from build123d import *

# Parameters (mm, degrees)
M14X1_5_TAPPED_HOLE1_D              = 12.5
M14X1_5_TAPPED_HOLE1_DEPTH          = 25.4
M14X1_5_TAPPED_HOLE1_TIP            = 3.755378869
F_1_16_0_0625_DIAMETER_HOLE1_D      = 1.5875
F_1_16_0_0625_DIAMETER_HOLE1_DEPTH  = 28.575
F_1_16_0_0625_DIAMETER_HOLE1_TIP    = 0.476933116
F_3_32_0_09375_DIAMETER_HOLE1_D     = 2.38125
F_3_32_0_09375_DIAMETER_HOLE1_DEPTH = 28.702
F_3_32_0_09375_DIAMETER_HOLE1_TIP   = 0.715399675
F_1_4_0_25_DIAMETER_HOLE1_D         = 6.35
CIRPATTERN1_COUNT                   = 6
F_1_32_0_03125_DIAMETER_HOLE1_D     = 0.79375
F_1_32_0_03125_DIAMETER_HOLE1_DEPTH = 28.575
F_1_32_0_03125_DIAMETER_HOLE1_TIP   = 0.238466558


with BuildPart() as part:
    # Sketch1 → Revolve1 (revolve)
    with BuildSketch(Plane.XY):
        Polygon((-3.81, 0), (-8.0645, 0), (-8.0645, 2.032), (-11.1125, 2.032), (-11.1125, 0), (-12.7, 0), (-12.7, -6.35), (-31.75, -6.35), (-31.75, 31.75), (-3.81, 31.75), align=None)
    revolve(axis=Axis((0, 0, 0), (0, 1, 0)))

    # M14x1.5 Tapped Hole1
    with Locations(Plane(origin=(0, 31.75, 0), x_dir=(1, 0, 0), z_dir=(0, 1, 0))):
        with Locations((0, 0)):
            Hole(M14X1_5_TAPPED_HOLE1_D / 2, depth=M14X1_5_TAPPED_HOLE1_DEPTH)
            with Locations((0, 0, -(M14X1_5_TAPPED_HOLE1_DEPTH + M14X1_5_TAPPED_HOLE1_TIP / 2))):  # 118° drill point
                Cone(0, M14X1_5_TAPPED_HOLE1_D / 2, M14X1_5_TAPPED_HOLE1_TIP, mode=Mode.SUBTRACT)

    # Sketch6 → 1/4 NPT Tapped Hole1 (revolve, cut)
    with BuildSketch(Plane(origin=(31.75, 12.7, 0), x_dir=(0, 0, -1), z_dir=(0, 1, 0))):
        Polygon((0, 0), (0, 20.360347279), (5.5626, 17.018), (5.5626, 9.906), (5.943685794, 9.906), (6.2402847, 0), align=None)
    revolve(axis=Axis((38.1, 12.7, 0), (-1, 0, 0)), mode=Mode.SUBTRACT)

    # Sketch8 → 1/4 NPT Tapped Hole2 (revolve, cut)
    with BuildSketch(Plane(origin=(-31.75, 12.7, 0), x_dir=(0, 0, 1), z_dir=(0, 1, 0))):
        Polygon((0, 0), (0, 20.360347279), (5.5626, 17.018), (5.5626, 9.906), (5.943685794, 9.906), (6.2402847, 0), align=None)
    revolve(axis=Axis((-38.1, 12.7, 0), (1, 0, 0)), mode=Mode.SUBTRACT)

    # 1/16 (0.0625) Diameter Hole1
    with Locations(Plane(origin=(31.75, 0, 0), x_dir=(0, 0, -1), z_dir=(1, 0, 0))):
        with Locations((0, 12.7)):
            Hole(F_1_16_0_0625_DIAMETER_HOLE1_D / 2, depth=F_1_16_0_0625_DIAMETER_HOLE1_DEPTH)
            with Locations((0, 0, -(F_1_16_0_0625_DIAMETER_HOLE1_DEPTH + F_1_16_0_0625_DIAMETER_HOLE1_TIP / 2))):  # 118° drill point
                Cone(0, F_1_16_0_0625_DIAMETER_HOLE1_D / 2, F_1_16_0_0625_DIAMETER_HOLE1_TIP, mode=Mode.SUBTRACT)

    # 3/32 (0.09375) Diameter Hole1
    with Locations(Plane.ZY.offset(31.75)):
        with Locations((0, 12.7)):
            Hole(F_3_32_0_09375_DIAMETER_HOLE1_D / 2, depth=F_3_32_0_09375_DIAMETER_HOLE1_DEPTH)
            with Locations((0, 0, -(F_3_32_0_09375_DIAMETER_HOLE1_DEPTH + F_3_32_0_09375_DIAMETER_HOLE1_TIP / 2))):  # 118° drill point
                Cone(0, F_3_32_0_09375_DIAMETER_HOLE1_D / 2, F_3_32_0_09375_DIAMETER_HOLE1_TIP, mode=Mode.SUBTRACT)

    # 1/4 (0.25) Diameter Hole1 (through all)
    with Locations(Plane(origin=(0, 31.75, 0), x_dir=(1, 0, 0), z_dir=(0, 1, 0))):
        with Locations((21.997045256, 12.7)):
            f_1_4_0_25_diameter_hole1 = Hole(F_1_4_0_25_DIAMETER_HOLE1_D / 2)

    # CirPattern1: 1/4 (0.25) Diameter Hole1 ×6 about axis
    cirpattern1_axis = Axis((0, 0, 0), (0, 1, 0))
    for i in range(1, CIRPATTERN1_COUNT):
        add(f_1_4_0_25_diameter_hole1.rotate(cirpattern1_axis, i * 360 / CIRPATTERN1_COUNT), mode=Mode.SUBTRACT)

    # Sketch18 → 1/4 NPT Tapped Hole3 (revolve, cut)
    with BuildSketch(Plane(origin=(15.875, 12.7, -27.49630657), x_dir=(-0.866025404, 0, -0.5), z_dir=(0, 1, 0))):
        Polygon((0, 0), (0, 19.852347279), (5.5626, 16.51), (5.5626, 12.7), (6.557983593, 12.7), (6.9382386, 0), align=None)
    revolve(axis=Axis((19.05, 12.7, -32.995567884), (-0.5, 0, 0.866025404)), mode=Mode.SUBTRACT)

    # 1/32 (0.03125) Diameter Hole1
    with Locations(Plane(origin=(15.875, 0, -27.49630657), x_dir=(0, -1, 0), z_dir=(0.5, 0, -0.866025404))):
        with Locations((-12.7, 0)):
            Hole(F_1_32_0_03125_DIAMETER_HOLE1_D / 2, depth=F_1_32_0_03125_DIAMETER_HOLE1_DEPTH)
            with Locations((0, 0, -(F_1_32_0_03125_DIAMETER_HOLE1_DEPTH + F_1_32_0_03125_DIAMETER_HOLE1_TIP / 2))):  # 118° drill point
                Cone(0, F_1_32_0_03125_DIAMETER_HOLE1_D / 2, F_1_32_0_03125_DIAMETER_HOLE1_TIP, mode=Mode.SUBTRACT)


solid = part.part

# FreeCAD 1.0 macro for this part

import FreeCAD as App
import Part
import Sketcher
from FreeCAD import Vector
Q = App.Units.Quantity

doc = App.newDocument("Part")
body = doc.addObject("PartDesign::Body", "Body")

sketch1 = doc.addObject("Sketcher::SketchObject", "Sketch")
body.addObject(sketch1)
sketch1.AttachmentSupport = (doc.XY_Plane, [""])
sketch1.MapMode = "FlatFace"
sketch1.addGeometry(Part.LineSegment(Vector(-8.1, 0, 0), Vector(-3.8, 0, 0)), False)
sketch1.addGeometry(Part.LineSegment(Vector(-3.8, 0, 0), Vector(-3.8, 31.8, 0)), False)
sketch1.addGeometry(Part.LineSegment(Vector(-3.8, 31.8, 0), Vector(-31.8, 31.8, 0)), False)
sketch1.addGeometry(Part.LineSegment(Vector(-31.8, 31.8, 0), Vector(-31.8, -6.3, 0)), False)
sketch1.addGeometry(Part.LineSegment(Vector(-31.8, -6.3, 0), Vector(-12.7, -6.3, 0)), False)
sketch1.addGeometry(Part.LineSegment(Vector(-12.7, -6.3, 0), Vector(-12.7, 0, 0)), False)
sketch1.addGeometry(Part.LineSegment(Vector(-12.7, 0, 0), Vector(-11.1, 0, 0)), False)
sketch1.addGeometry(Part.LineSegment(Vector(-11.1, 0, 0), Vector(-11.1, 2, 0)), False)
sketch1.addGeometry(Part.LineSegment(Vector(-11.1, 2, 0), Vector(-8.1, 2, 0)), False)
sketch1.addGeometry(Part.LineSegment(Vector(-8.1, 2, 0), Vector(-8.1, 0, 0)), False)
sketch1.addConstraint(Sketcher.Constraint("Coincident", 0, 2, 1, 1))
sketch1.addConstraint(Sketcher.Constraint("Coincident", 1, 2, 2, 1))
sketch1.addConstraint(Sketcher.Constraint("Coincident", 2, 2, 3, 1))
sketch1.addConstraint(Sketcher.Constraint("Coincident", 3, 2, 4, 1))
sketch1.addConstraint(Sketcher.Constraint("Coincident", 4, 2, 5, 1))
sketch1.addConstraint(Sketcher.Constraint("Coincident", 5, 2, 6, 1))
sketch1.addConstraint(Sketcher.Constraint("Coincident", 6, 2, 7, 1))
sketch1.addConstraint(Sketcher.Constraint("Coincident", 7, 2, 8, 1))
sketch1.addConstraint(Sketcher.Constraint("Coincident", 8, 2, 9, 1))
sketch1.addConstraint(Sketcher.Constraint("Coincident", 9, 2, 0, 1))
sketch1.addConstraint(Sketcher.Constraint("Horizontal", 0))
sketch1.addConstraint(Sketcher.Constraint("Vertical", 1))
sketch1.addConstraint(Sketcher.Constraint("Horizontal", 2))
sketch1.addConstraint(Sketcher.Constraint("Vertical", 3))
sketch1.addConstraint(Sketcher.Constraint("Horizontal", 4))
sketch1.addConstraint(Sketcher.Constraint("Vertical", 5))
sketch1.addConstraint(Sketcher.Constraint("Horizontal", 6))
sketch1.addConstraint(Sketcher.Constraint("Vertical", 7))
sketch1.addConstraint(Sketcher.Constraint("Horizontal", 8))
sketch1.addConstraint(Sketcher.Constraint("Vertical", 9))
sketch1.addConstraint(Sketcher.Constraint("PointOnObject", 0, 2, -1))
sketch1.addConstraint(Sketcher.Constraint("PointOnObject", 5, 2, -1))
sketch1.addConstraint(Sketcher.Constraint("DistanceX", 2, 2, 2, 1, Q("1.1 in")))
sketch1.addConstraint(Sketcher.Constraint("DistanceY", 3, 2, 3, 1, Q("1.5 in")))
sketch1.addConstraint(Sketcher.Constraint("DistanceX", 4, 1, 4, 2, Q("0.75 in")))
sketch1.addConstraint(Sketcher.Constraint("DistanceX", 8, 1, 8, 2, Q("0.12 in")))
sketch1.addConstraint(Sketcher.Constraint("DistanceY", 1, 1, 1, 2, Q("1.25 in")))
sketch1.addConstraint(Sketcher.Constraint("DistanceY", 7, 1, 7, 2, Q("0.08 in")))
sketch1.addConstraint(Sketcher.Constraint("DistanceX", 4, 2, -1, 1, Q("0.5 in")))
sketch1.addConstraint(Sketcher.Constraint("DistanceX", 6, 1, 6, 2, Q("0.0625 in")))
revolution = doc.addObject("PartDesign::Revolution", "Revolution")
body.addObject(revolution)
revolution.Profile = sketch1
revolution.ReferenceAxis = (sketch1, ["V_Axis"])
revolution.Angle = 360

sketch2 = doc.addObject("Sketcher::SketchObject", "Sketch001")
body.addObject(sketch2)
sketch2.AttachmentSupport = (doc.XZ_Plane, [""])
sketch2.MapMode = "FlatFace"
sketch2.AttachmentOffset = App.Placement(Vector(0, 0, -1.25 * 25.4), App.Rotation())
sketch2.addGeometry(Part.Circle(Vector(0, 0, 0), Vector(0, 0, 1), 6), False)
sketch2.addConstraint(Sketcher.Constraint("Coincident", 0, 3, -1, 1))
sketch2.addConstraint(Sketcher.Constraint("Diameter", 0, 12.5))
doc.recompute()
hole = doc.addObject("PartDesign::Hole", "Hole")
body.addObject(hole)
hole.Profile = sketch2
hole.ThreadType = "None"
hole.Diameter = 12.5
hole.DepthType = "Dimension"
hole.Depth = Q("1 in")
hole.DrillPoint = "Angled"
hole.DrillPointAngle = 118
hole.Reversed = True

sketch3 = doc.addObject("Sketcher::SketchObject", "Sketch002")
body.addObject(sketch3)
sketch3.AttachmentSupport = (doc.XZ_Plane, [""])
sketch3.MapMode = "FlatFace"
sketch3.AttachmentOffset = App.Placement(Vector(0, 0, -0.5 * 25.4), App.Rotation())
sketch3.addGeometry(Part.LineSegment(Vector(11.39, 0, 0), Vector(31.75, 0, 0)), False)
sketch3.addGeometry(Part.LineSegment(Vector(31.75, 0, 0), Vector(31.75, -6.24, 0)), False)
sketch3.addGeometry(Part.LineSegment(Vector(31.75, -6.24, 0), Vector(21.84, -5.94, 0)), False)
sketch3.addGeometry(Part.LineSegment(Vector(21.84, -5.94, 0), Vector(21.84, -5.56, 0)), False)
sketch3.addGeometry(Part.LineSegment(Vector(21.84, -5.56, 0), Vector(14.73, -5.56, 0)), False)
sketch3.addGeometry(Part.LineSegment(Vector(14.73, -5.56, 0), Vector(11.39, 0, 0)), False)
sketch3.addConstraint(Sketcher.Constraint("Coincident", 0, 2, 1, 1))
sketch3.addConstraint(Sketcher.Constraint("Coincident", 1, 2, 2, 1))
sketch3.addConstraint(Sketcher.Constraint("Coincident", 2, 2, 3, 1))
sketch3.addConstraint(Sketcher.Constraint("Coincident", 3, 2, 4, 1))
sketch3.addConstraint(Sketcher.Constraint("Coincident", 4, 2, 5, 1))
sketch3.addConstraint(Sketcher.Constraint("Coincident", 5, 2, 0, 1))
sketch3.addConstraint(Sketcher.Constraint("Horizontal", 0))
sketch3.addConstraint(Sketcher.Constraint("Vertical", 1))
sketch3.addConstraint(Sketcher.Constraint("Vertical", 3))
sketch3.addConstraint(Sketcher.Constraint("Horizontal", 4))
sketch3.addConstraint(Sketcher.Constraint("PointOnObject", 0, 2, -1))
sketch3.addConstraint(Sketcher.Constraint("Angle", 5, Q("121 deg")))
sketch3.addConstraint(Sketcher.Constraint("DistanceX", 4, 2, 4, 1, Q("0.28 in")))
sketch3.addConstraint(Sketcher.Constraint("DistanceX", -1, 1, 0, 2, Q("1.25 in")))
sketch3.addConstraint(Sketcher.Constraint("DistanceX", -1, 1, 2, 2, Q("0.86 in")))
sketch3.addConstraint(Sketcher.Constraint("DistanceY", 3, 2, -1, 1, Q("0.219 in")))
sketch3.addConstraint(Sketcher.Constraint("DistanceY", 1, 2, 2, 2, 0.296599))
sketch3.addConstraint(Sketcher.Constraint("DistanceY", 1, 2, 1, 1, 6.240285))
groove = doc.addObject("PartDesign::Groove", "Groove")
body.addObject(groove)
groove.Profile = sketch3
groove.ReferenceAxis = (sketch3, ["H_Axis"])
groove.Angle = 360

sketch4 = doc.addObject("Sketcher::SketchObject", "Sketch003")
body.addObject(sketch4)
sketch4.AttachmentSupport = (doc.XZ_Plane, [""])
sketch4.MapMode = "FlatFace"
sketch4.AttachmentOffset = App.Placement(Vector(0, 0, -0.5 * 25.4), App.Rotation())
sketch4.addGeometry(Part.LineSegment(Vector(-11.39, 0, 0), Vector(-31.75, 0, 0)), False)
sketch4.addGeometry(Part.LineSegment(Vector(-31.75, 0, 0), Vector(-31.75, 6.24, 0)), False)
sketch4.addGeometry(Part.LineSegment(Vector(-31.75, 6.24, 0), Vector(-21.84, 5.94, 0)), False)
sketch4.addGeometry(Part.LineSegment(Vector(-21.84, 5.94, 0), Vector(-21.84, 5.56, 0)), False)
sketch4.addGeometry(Part.LineSegment(Vector(-21.84, 5.56, 0), Vector(-14.73, 5.56, 0)), False)
sketch4.addGeometry(Part.LineSegment(Vector(-14.73, 5.56, 0), Vector(-11.39, 0, 0)), False)
sketch4.addConstraint(Sketcher.Constraint("Coincident", 0, 2, 1, 1))
sketch4.addConstraint(Sketcher.Constraint("Coincident", 1, 2, 2, 1))
sketch4.addConstraint(Sketcher.Constraint("Coincident", 2, 2, 3, 1))
sketch4.addConstraint(Sketcher.Constraint("Coincident", 3, 2, 4, 1))
sketch4.addConstraint(Sketcher.Constraint("Coincident", 4, 2, 5, 1))
sketch4.addConstraint(Sketcher.Constraint("Coincident", 5, 2, 0, 1))
sketch4.addConstraint(Sketcher.Constraint("Horizontal", 0))
sketch4.addConstraint(Sketcher.Constraint("Vertical", 1))
sketch4.addConstraint(Sketcher.Constraint("Vertical", 3))
sketch4.addConstraint(Sketcher.Constraint("Horizontal", 4))
sketch4.addConstraint(Sketcher.Constraint("PointOnObject", 0, 2, -1))
sketch4.addConstraint(Sketcher.Constraint("Angle", 5, Q("-59 deg")))
sketch4.addConstraint(Sketcher.Constraint("DistanceX", 4, 1, 4, 2, Q("0.28 in")))
sketch4.addConstraint(Sketcher.Constraint("DistanceX", 0, 2, -1, 1, Q("1.25 in")))
sketch4.addConstraint(Sketcher.Constraint("DistanceX", 2, 2, -1, 1, Q("0.86 in")))
sketch4.addConstraint(Sketcher.Constraint("DistanceY", -1, 1, 3, 2, Q("0.219 in")))
sketch4.addConstraint(Sketcher.Constraint("DistanceY", 2, 2, 1, 2, 0.296599))
sketch4.addConstraint(Sketcher.Constraint("DistanceY", 1, 1, 1, 2, 6.240285))
groove2 = doc.addObject("PartDesign::Groove", "Groove001")
body.addObject(groove2)
groove2.Profile = sketch4
groove2.ReferenceAxis = (sketch4, ["H_Axis"])
groove2.Angle = 360

sketch5 = doc.addObject("Sketcher::SketchObject", "Sketch004")
body.addObject(sketch5)
sketch5.AttachmentSupport = (doc.YZ_Plane, [""])
sketch5.MapMode = "FlatFace"
sketch5.AttachmentOffset = App.Placement(Vector(0, 0, 1.25 * 25.4), App.Rotation())
sketch5.addGeometry(Part.Circle(Vector(12.7, 0, 0), Vector(0, 0, 1), 0.8), False)
sketch5.addConstraint(Sketcher.Constraint("PointOnObject", 0, 3, -1))
sketch5.addConstraint(Sketcher.Constraint("Diameter", 0, Q("0.0625 in")))
sketch5.addConstraint(Sketcher.Constraint("DistanceX", -1, 1, 0, 3, Q("0.5 in")))
doc.recompute()
hole2 = doc.addObject("PartDesign::Hole", "Hole001")
body.addObject(hole2)
hole2.Profile = sketch5
hole2.ThreadType = "None"
hole2.Diameter = Q("0.0625 in")
hole2.DepthType = "Dimension"
hole2.Depth = Q("1.125 in")
hole2.DrillPoint = "Angled"
hole2.DrillPointAngle = 118

sketch6 = doc.addObject("Sketcher::SketchObject", "Sketch005")
body.addObject(sketch6)
sketch6.AttachmentSupport = (doc.YZ_Plane, [""])
sketch6.MapMode = "FlatFace"
sketch6.AttachmentOffset = App.Placement(Vector(0, 0, -1.25 * 25.4), App.Rotation())
sketch6.addGeometry(Part.Circle(Vector(12.7, 0, 0), Vector(0, 0, 1), 1.2), False)
sketch6.addConstraint(Sketcher.Constraint("PointOnObject", 0, 3, -1))
sketch6.addConstraint(Sketcher.Constraint("Diameter", 0, Q("0.09375 in")))
sketch6.addConstraint(Sketcher.Constraint("DistanceX", -1, 1, 0, 3, Q("0.5 in")))
doc.recompute()
hole3 = doc.addObject("PartDesign::Hole", "Hole002")
body.addObject(hole3)
hole3.Profile = sketch6
hole3.ThreadType = "None"
hole3.Diameter = Q("0.09375 in")
hole3.DepthType = "Dimension"
hole3.Depth = Q("1.13 in")
hole3.DrillPoint = "Angled"
hole3.DrillPointAngle = 118
hole3.Reversed = True

sketch7 = doc.addObject("Sketcher::SketchObject", "Sketch006")
body.addObject(sketch7)
sketch7.AttachmentSupport = (doc.XZ_Plane, [""])
sketch7.MapMode = "FlatFace"
sketch7.AttachmentOffset = App.Placement(Vector(0, 0, -1.25 * 25.4), App.Rotation())
sketch7.addGeometry(Part.Circle(Vector(22, -12.7, 0), Vector(0, 0, 1), 3.2), False)
sketch7.addConstraint(Sketcher.Constraint("Diameter", 0, Q("0.25 in")))
sketch7.addConstraint(Sketcher.Constraint("DistanceY", 0, 3, -1, 1, Q("0.5 in")))
sketch7.addConstraint(Sketcher.Constraint("DistanceX", -1, 1, 0, 3, 21.997045))
doc.recompute()
hole4 = doc.addObject("PartDesign::Hole", "Hole003")
body.addObject(hole4)
hole4.Profile = sketch7
hole4.ThreadType = "None"
hole4.Diameter = Q("0.25 in")
hole4.DepthType = "ThroughAll"
hole4.Reversed = True
doc.recompute()

polarpattern = doc.addObject("PartDesign::PolarPattern", "PolarPattern")
body.addObject(polarpattern)
polarpattern.Originals = [hole4]
polarpattern.Axis = (doc.Y_Axis, [""])
polarpattern.Angle = 360
polarpattern.Occurrences = 6
body.Tip = polarpattern

sketch8 = doc.addObject("Sketcher::SketchObject", "Sketch007")
body.addObject(sketch8)
sketch8.AttachmentSupport = (doc.XZ_Plane, [""])
sketch8.MapMode = "FlatFace"
sketch8.AttachmentOffset = App.Placement(Vector(0, 0, -0.5 * 25.4), App.Rotation())
sketch8.addGeometry(Part.LineSegment(Vector(5.9, -10.3, 0), Vector(15.9, -27.5, 0)), False)
sketch8.addGeometry(Part.LineSegment(Vector(15.9, -27.5, 0), Vector(9.9, -31, 0)), False)
sketch8.addGeometry(Part.LineSegment(Vector(9.9, -31, 0), Vector(3.8, -19.8, 0)), False)
sketch8.addGeometry(Part.LineSegment(Vector(3.8, -19.8, 0), Vector(4.7, -19.3, 0)), False)
sketch8.addGeometry(Part.LineSegment(Vector(4.7, -19.3, 0), Vector(2.8, -16, 0)), False)
sketch8.addGeometry(Part.LineSegment(Vector(2.8, -16, 0), Vector(5.9, -10.3, 0)), False)
sketch8.addGeometry(Part.LineSegment(Vector(15.9, -27.5, 0), Vector(5.9, -10.3, 0)), True)
sketch8.addConstraint(Sketcher.Constraint("Coincident", 0, 2, 1, 1))
sketch8.addConstraint(Sketcher.Constraint("Coincident", 1, 2, 2, 1))
sketch8.addConstraint(Sketcher.Constraint("Coincident", 2, 2, 3, 1))
sketch8.addConstraint(Sketcher.Constraint("Coincident", 3, 2, 4, 1))
sketch8.addConstraint(Sketcher.Constraint("Coincident", 4, 2, 5, 1))
sketch8.addConstraint(Sketcher.Constraint("Coincident", 5, 2, 0, 1))
sketch8.addConstraint(Sketcher.Constraint("Coincident", 6, 1, 0, 2))
sketch8.addConstraint(Sketcher.Constraint("Coincident", 6, 2, 5, 2))
sketch8.addConstraint(Sketcher.Constraint("Perpendicular", 0, 1))
sketch8.addConstraint(Sketcher.Constraint("Parallel", 1, 3))
sketch8.addConstraint(Sketcher.Constraint("Perpendicular", 3, 4))
sketch8.addConstraint(Sketcher.Constraint("Angle", 0, Q("-60 deg")))
sketch8.addConstraint(Sketcher.Constraint("Angle", 5, Q("61 deg")))
sketch8.addConstraint(Sketcher.Constraint("Distance", 4, Q("0.15 in")))
sketch8.addConstraint(Sketcher.Constraint("DistanceX", -1, 1, 0, 2, Q("0.625 in")))
sketch8.addConstraint(Sketcher.Constraint("DistanceY", 1, 2, 4, 2, 14.985899))
sketch8.addConstraint(Sketcher.Constraint("Distance", 1, 6.938239))
sketch8.addConstraint(Sketcher.Constraint("Distance", 2, 12.705691))
sketch8.addConstraint(Sketcher.Constraint("DistanceX", -1, 1, 2, 2, 3.84562))
sketch8.addConstraint(Sketcher.Constraint("DistanceY", 5, 2, -1, 1, 10.303669))
groove3 = doc.addObject("PartDesign::Groove", "Groove002")
body.addObject(groove3)
groove3.Profile = sketch8
groove3.ReferenceAxis = (sketch8, ["Axis0"])
groove3.Angle = 360

sketch9 = doc.addObject("Sketcher::SketchObject", "Sketch008")
body.addObject(sketch9)
sketch9.Placement = App.Placement(Vector(15.875, 0, -27.496307), App.Rotation(Vector(0, -1, 0), Vector(-0.866025404, 0, -0.5), Vector(0.5, 0, -0.866025404), "ZXY"))
sketch9.addGeometry(Part.Circle(Vector(-12.7, 0, 0), Vector(0, 0, 1), 0.4), False)
sketch9.addConstraint(Sketcher.Constraint("PointOnObject", 0, 3, -1))
sketch9.addConstraint(Sketcher.Constraint("Diameter", 0, Q("0.03125 in")))
sketch9.addConstraint(Sketcher.Constraint("DistanceX", 0, 3, -1, 1, Q("0.5 in")))
doc.recompute()
hole5 = doc.addObject("PartDesign::Hole", "Hole004")
body.addObject(hole5)
hole5.Profile = sketch9
hole5.ThreadType = "None"
hole5.Diameter = Q("0.03125 in")
hole5.DepthType = "Dimension"
hole5.Depth = Q("1.125 in")
hole5.DrillPoint = "Angled"
hole5.DrillPointAngle = 118

doc.recompute()
